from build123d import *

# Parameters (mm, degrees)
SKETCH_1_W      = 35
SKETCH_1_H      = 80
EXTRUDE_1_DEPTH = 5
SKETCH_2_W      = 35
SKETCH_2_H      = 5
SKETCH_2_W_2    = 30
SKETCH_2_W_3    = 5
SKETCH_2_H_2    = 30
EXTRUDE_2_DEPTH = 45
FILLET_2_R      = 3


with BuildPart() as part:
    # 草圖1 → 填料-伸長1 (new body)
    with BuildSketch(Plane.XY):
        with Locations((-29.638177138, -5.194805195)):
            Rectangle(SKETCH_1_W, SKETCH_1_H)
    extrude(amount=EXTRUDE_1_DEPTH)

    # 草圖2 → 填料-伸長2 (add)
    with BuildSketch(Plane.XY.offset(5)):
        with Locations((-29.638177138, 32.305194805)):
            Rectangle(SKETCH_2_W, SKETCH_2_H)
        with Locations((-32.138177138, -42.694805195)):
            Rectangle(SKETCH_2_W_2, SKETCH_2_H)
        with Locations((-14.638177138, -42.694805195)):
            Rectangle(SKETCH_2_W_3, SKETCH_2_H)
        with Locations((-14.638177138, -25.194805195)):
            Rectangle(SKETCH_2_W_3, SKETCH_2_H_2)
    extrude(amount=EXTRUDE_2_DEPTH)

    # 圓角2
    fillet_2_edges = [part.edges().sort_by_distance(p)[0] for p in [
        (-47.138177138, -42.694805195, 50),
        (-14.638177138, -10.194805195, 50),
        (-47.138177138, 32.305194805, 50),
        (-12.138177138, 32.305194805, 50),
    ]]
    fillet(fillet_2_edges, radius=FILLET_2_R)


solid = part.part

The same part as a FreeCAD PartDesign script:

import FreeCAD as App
import Part
import Sketcher

V = App.Vector
Q = App.Units.Quantity


def edges_at(feature, points):
    """Names of the edges that pass closest to the given points."""
    edges = feature.Shape.Edges
    near = lambda p: min(range(len(edges)), key=lambda i: edges[i].distToShape(Part.Vertex(*p))[0])
    return sorted({f"Edge{near(p) + 1}" for p in points})

doc = App.newDocument("Part")
body = doc.addObject("PartDesign::Body", "Body")

sketch1 = doc.addObject("Sketcher::SketchObject", "Sketch")
body.addObject(sketch1)
sketch1.AttachmentSupport = (doc.XY_Plane, [""])
sketch1.MapMode = "FlatFace"
sketch1.addGeometry([
    Part.LineSegment(V(-47, 35, 0), V(-47, -45, 0)),
    Part.LineSegment(V(-47, -45, 0), V(-12, -45, 0)),
    Part.LineSegment(V(-12, -45, 0), V(-12, 35, 0)),
    Part.LineSegment(V(-12, 35, 0), V(-47, 35, 0)),
], False)
sketch1.addConstraint([
    Sketcher.Constraint("Coincident", 0, 2, 1, 1),
    Sketcher.Constraint("Coincident", 1, 2, 2, 1),
    Sketcher.Constraint("Coincident", 2, 2, 3, 1),
    Sketcher.Constraint("Coincident", 3, 2, 0, 1),
    Sketcher.Constraint("Vertical", 0),
    Sketcher.Constraint("Horizontal", 1),
    Sketcher.Constraint("Vertical", 2),
    Sketcher.Constraint("Horizontal", 3),
    Sketcher.Constraint("DistanceX", 1, 1, 1, 2, Q("35 mm")),
    Sketcher.Constraint("DistanceY", 0, 2, 0, 1, Q("80 mm")),
    Sketcher.Constraint("DistanceX", 0, 2, -1, 1, Q("47.138177 mm")),
    Sketcher.Constraint("DistanceY", 0, 2, -1, 1, Q("45.194805 mm")),
])
pad1 = doc.addObject("PartDesign::Pad", "Pad")
body.addObject(pad1)
pad1.Profile = sketch1
pad1.Length = 5

sketch2 = doc.addObject("Sketcher::SketchObject", "Sketch001")
body.addObject(sketch2)
sketch2.AttachmentSupport = (doc.XY_Plane, [""])
sketch2.MapMode = "FlatFace"
sketch2.AttachmentOffset = App.Placement(V(0, 0, 5), App.Rotation())
sketch2.addGeometry([
    Part.LineSegment(V(-47, 35, 0), V(-47, 30, 0)),
    Part.LineSegment(V(-47, 30, 0), V(-12, 30, 0)),
    Part.LineSegment(V(-12, 30, 0), V(-12, 35, 0)),
    Part.LineSegment(V(-12, 35, 0), V(-47, 35, 0)),
    Part.LineSegment(V(-47, -40, 0), V(-47, -45, 0)),
    Part.LineSegment(V(-47, -45, 0), V(-12, -45, 0)),
    Part.LineSegment(V(-12, -45, 0), V(-12, -10, 0)),
    Part.LineSegment(V(-12, -10, 0), V(-17, -10, 0)),
    Part.LineSegment(V(-17, -10, 0), V(-17, -40, 0)),
    Part.LineSegment(V(-17, -40, 0), V(-47, -40, 0)),
], False)
sketch2.addConstraint([
    Sketcher.Constraint("Coincident", 0, 2, 1, 1),
    Sketcher.Constraint("Coincident", 1, 2, 2, 1),
    Sketcher.Constraint("Coincident", 2, 2, 3, 1),
    Sketcher.Constraint("Coincident", 3, 2, 0, 1),
    Sketcher.Constraint("Coincident", 4, 2, 5, 1),
    Sketcher.Constraint("Coincident", 5, 2, 6, 1),
    Sketcher.Constraint("Coincident", 6, 2, 7, 1),
    Sketcher.Constraint("Coincident", 7, 2, 8, 1),
    Sketcher.Constraint("Coincident", 8, 2, 9, 1),
    Sketcher.Constraint("Coincident", 9, 2, 4, 1),
    Sketcher.Constraint("Vertical", 0),
    Sketcher.Constraint("Horizontal", 1),
    Sketcher.Constraint("Vertical", 2),
    Sketcher.Constraint("Horizontal", 3),
    Sketcher.Constraint("Vertical", 4),
    Sketcher.Constraint("Horizontal", 5),
    Sketcher.Constraint("Vertical", 6),
    Sketcher.Constraint("Horizontal", 7),
    Sketcher.Constraint("Vertical", 8),
    Sketcher.Constraint("Horizontal", 9),
    Sketcher.Constraint("Vertical", 3, 2, 4, 2),
    Sketcher.Constraint("Vertical", 2, 2, 5, 2),
    Sketcher.Constraint("Equal", 7, 0),
    Sketcher.Constraint("Equal", 2, 4),
    Sketcher.Constraint("Equal", 5, 6),
    Sketcher.Constraint("DistanceX", 1, 1, 1, 2, Q("35 mm")),
    Sketcher.Constraint("DistanceX", 7, 2, 7, 1, Q("5 mm")),
    Sketcher.Constraint("DistanceY", 4, 2, 0, 2, Q("75 mm")),
    Sketcher.Constraint("DistanceX", 0, 2, -1, 1, Q("47.138177 mm")),
    Sketcher.Constraint("DistanceY", -1, 1, 0, 2, Q("29.805195 mm")),
])
pad2 = doc.addObject("PartDesign::Pad", "Pad001")
body.addObject(pad2)
pad2.Profile = sketch2
pad2.Length = 45
doc.recompute()

fillet = doc.addObject("PartDesign::Fillet", "Fillet")
body.addObject(fillet)
fillet.Base = (pad2, edges_at(pad2, [
    (-47.138, -42.695, 50),
    (-14.638, -10.195, 50),
    (-47.138, 32.305, 50),
    (-12.138, 32.305, 50),
]))
fillet.Radius = 3

doc.recompute()
